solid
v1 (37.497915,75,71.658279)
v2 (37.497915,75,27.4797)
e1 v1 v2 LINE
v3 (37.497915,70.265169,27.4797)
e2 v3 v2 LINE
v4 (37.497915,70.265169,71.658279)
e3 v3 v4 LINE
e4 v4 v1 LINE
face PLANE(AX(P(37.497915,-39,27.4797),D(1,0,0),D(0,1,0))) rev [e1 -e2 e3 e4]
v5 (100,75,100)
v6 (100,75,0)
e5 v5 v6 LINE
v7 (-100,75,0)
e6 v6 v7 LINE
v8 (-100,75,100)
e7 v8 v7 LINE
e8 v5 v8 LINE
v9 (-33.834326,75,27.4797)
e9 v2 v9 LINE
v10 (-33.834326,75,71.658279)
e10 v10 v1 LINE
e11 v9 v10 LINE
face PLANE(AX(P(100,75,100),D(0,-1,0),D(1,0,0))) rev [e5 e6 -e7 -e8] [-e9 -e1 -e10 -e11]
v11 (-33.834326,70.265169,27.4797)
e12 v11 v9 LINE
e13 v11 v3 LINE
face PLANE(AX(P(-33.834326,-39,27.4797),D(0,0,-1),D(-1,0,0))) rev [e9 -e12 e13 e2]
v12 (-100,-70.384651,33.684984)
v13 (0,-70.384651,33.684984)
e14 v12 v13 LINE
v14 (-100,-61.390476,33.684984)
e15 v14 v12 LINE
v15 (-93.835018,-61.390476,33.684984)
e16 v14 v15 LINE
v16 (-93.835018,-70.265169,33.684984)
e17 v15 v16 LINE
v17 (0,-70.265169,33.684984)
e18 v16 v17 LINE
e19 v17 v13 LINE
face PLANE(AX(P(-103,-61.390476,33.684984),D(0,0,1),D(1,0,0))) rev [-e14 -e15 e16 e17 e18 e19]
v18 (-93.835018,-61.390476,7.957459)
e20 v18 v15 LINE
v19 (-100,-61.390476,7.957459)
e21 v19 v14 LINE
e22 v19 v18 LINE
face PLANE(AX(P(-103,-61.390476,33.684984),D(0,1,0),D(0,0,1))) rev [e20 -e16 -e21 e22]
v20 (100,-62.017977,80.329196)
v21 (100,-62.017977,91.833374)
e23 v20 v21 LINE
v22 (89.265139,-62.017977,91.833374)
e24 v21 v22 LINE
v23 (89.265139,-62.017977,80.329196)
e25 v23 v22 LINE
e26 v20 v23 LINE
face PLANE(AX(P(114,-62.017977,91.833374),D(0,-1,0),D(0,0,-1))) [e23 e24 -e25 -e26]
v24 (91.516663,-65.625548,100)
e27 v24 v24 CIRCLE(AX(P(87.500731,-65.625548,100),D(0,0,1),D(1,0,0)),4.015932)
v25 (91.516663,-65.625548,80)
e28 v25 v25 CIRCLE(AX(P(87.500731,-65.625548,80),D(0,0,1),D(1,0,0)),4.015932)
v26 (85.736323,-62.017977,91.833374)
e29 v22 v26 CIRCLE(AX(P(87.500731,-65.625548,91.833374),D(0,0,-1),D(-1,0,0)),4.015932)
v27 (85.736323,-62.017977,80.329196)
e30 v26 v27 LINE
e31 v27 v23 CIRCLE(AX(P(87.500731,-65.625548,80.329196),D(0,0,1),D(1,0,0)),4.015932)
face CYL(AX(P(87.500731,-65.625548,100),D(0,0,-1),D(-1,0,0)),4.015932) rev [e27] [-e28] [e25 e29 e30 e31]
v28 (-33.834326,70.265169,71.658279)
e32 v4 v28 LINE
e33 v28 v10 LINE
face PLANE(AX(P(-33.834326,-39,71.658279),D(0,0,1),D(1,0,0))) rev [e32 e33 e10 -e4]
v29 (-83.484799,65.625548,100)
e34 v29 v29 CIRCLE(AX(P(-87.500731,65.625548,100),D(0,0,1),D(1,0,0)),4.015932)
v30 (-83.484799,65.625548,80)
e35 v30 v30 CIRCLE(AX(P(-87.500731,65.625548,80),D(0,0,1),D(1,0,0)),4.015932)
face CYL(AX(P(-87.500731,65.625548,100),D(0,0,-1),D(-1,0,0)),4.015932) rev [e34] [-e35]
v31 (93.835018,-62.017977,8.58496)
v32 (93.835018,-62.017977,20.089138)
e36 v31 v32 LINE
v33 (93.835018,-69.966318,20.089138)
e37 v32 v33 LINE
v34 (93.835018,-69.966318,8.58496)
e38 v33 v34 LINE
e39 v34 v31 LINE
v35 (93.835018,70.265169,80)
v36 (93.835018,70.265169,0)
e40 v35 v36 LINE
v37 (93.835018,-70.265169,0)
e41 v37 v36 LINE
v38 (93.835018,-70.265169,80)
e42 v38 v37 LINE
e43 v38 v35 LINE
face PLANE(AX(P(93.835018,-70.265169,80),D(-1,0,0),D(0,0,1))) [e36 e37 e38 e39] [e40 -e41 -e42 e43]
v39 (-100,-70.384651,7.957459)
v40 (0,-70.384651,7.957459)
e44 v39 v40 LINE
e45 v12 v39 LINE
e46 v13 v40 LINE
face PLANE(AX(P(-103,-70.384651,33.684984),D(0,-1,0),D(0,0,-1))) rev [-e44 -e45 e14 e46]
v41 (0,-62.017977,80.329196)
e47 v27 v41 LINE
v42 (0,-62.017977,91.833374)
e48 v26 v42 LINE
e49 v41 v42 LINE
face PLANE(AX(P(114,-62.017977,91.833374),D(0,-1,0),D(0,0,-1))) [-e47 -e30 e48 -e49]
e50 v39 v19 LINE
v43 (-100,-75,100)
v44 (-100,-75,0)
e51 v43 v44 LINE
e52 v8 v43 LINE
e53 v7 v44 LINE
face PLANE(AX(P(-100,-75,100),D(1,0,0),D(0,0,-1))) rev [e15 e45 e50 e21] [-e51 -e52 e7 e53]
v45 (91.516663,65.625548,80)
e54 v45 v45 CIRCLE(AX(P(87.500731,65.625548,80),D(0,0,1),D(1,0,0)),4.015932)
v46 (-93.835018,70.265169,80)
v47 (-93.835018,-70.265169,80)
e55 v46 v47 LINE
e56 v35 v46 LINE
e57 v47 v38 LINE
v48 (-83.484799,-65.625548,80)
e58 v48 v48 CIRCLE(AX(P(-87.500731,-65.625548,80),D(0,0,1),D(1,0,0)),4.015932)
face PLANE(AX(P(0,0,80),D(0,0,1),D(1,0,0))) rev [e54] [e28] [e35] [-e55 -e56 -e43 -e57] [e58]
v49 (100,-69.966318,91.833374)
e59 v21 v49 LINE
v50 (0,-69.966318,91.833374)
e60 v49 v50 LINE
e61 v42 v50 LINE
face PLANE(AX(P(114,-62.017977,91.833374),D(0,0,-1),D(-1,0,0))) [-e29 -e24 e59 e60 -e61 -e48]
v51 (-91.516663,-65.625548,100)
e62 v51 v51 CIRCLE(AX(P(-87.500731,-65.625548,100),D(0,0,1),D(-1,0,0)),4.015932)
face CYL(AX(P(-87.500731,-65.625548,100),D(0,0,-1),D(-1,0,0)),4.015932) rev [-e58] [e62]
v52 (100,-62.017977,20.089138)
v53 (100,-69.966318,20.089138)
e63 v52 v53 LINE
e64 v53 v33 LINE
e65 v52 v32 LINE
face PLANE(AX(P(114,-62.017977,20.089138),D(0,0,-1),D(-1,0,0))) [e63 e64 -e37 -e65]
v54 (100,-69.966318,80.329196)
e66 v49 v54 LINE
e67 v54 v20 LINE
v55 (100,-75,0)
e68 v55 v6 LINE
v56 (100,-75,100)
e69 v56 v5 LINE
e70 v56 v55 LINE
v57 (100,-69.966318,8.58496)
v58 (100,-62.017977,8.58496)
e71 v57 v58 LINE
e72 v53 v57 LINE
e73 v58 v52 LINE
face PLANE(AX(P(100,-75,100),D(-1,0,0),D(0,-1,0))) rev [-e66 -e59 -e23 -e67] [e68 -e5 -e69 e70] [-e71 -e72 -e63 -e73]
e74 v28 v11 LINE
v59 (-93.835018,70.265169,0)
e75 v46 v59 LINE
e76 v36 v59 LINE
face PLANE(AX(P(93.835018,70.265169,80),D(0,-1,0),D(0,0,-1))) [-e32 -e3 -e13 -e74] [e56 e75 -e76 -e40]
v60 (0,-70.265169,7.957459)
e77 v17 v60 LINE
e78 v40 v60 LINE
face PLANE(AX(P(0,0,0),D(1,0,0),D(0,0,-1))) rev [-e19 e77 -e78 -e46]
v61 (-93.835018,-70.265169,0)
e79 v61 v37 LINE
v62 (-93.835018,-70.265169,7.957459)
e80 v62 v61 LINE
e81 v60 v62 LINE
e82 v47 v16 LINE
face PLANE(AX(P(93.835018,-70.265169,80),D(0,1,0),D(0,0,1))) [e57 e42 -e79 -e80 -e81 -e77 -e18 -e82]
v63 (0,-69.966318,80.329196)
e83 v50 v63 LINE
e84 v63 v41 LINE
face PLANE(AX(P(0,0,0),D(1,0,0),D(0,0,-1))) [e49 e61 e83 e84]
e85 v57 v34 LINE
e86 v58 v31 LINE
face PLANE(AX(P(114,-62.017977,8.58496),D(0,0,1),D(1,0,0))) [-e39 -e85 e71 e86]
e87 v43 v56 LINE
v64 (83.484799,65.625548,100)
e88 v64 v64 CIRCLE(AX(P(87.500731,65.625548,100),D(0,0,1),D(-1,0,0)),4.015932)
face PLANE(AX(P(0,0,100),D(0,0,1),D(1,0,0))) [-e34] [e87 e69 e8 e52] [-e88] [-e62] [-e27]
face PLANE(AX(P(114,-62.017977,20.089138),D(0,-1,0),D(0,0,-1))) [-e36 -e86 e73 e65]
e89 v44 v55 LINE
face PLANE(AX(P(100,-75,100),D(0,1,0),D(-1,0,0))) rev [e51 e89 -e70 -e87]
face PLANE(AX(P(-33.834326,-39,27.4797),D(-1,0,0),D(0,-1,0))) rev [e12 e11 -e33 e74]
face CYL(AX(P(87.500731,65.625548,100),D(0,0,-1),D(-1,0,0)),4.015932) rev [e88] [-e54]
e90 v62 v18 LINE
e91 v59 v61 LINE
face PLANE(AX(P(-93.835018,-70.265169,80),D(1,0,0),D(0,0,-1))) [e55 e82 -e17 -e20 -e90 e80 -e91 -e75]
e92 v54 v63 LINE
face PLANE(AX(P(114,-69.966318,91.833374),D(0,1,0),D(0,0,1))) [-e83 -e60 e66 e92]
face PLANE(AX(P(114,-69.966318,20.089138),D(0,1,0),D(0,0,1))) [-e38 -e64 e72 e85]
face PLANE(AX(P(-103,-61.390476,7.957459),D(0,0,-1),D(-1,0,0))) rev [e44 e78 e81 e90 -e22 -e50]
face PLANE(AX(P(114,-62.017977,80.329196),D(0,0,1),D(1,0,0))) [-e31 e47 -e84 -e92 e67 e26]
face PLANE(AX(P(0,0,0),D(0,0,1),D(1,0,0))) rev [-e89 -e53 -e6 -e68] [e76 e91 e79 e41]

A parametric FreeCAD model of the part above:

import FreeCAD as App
import Part
import Sketcher
from FreeCAD import Vector


def add_polygon(sketch, points):
    """Adds a closed chain of lines whose ends are joined by coincident constraints."""
    first, n = sketch.GeometryCount, len(points)
    for a, b in zip(points, points[1:] + points[:1]):
        sketch.addGeometry(Part.LineSegment(App.Vector(*a, 0), App.Vector(*b, 0)), False)
    for i in range(n):
        sketch.addConstraint(Sketcher.Constraint("Coincident", first + i, 2, first + (i + 1) % n, 1))

doc = App.newDocument("Part")
params = doc.addObject("Spreadsheet::Sheet", "Params")
for row, (alias, value) in enumerate([
    ("sketch1_width", "200 mm"),
    ("sketch1_height", "150 mm"),
    ("pad1_length", "100 mm"),
    ("pocket1_length", "80 mm"),
    ("pocket2_length", "103 mm"),
    ("pocket3_length", "114 mm"),
    ("pocket4_length", "114 mm"),
], start=1):
    params.set(f"A{row}", alias)
    params.set(f"B{row}", "=" + value)
    params.setAlias(f"B{row}", alias)

body = doc.addObject("PartDesign::Body", "Body")

sketch1 = body.newObject("Sketcher::SketchObject", "Sketch")
sketch1.AttachmentSupport = (doc.getObject("XY_Plane"), [""])
sketch1.MapMode = "FlatFace"
add_polygon(sketch1, [(-100, 75), (-100, -75), (100, -75), (100, 75)])
sketch1.addGeometry(Part.Circle(Vector(-87.5, -65.6, 0), Vector(0, 0, 1), 4), False)
sketch1.addGeometry(Part.Circle(Vector(87.5, -65.6, 0), Vector(0, 0, 1), 4), False)
sketch1.addGeometry(Part.Circle(Vector(-87.5, 65.6, 0), Vector(0, 0, 1), 4), False)
sketch1.addGeometry(Part.Circle(Vector(87.5, 65.6, 0), Vector(0, 0, 1), 4), False)
sketch1.addConstraint([
    Sketcher.Constraint("Vertical", 0),
    Sketcher.Constraint("Horizontal", 1),
    Sketcher.Constraint("Vertical", 2),
    Sketcher.Constraint("Horizontal", 3),
    Sketcher.Constraint("Equal", 4, 5),
    Sketcher.Constraint("Equal", 5, 6),
    Sketcher.Constraint("Equal", 6, 7),
    Sketcher.Constraint("Symmetric", 5, 3, 6, 3, -1, 1),
    Sketcher.Constraint("Symmetric", 4, 3, 7, 3, -1, 1),
    Sketcher.Constraint("Symmetric", 0, 2, 2, 2, -1, 1),
    Sketcher.Constraint("Symmetric", 4, 3, 5, 3, -2),
    Sketcher.Constraint("DistanceX", 1, 1, 1, 2, 200.0),
    Sketcher.Constraint("DistanceY", 0, 2, 0, 1, 150.0),
    Sketcher.Constraint("Diameter", 4, 8.031863),
    Sketcher.Constraint("DistanceX", 4, 3, -1, 1, 87.500731),
    Sketcher.Constraint("DistanceY", 4, 3, -1, 1, 65.625548),
])
sketch1.setExpression("Constraints[15]", "Params.sketch1_width")
sketch1.setExpression("Constraints[16]", "Params.sketch1_height")
pad1 = body.newObject("PartDesign::Pad", "Pad")
pad1.Profile = sketch1
pad1.setExpression("Length", "Params.pad1_length")

sketch2 = body.newObject("Sketcher::SketchObject", "Sketch001")
sketch2.AttachmentSupport = (doc.getObject("XY_Plane"), [""])
sketch2.MapMode = "FlatFace"
add_polygon(sketch2, [(-94, 70), (-94, -70), (94, -70), (94, 70)])
sketch2.addConstraint([
    Sketcher.Constraint("Vertical", 0),
    Sketcher.Constraint("Horizontal", 1),
    Sketcher.Constraint("Vertical", 2),
    Sketcher.Constraint("Horizontal", 3),
    Sketcher.Constraint("Symmetric", 0, 2, 2, 2, -1, 1),
    Sketcher.Constraint("DistanceY", 0, 2, 0, 1, 140.530339),
    Sketcher.Constraint("DistanceX", 1, 1, 1, 2, 187.670036),
])
pocket1 = body.newObject("PartDesign::Pocket", "Pocket")
pocket1.Profile = sketch2
pocket1.setExpression("Length", "Params.pocket1_length")
pocket1.Reversed = True

sketch3 = body.newObject("Sketcher::SketchObject", "Sketch002")
sketch3.AttachmentSupport = (doc.getObject("YZ_Plane"), [""])
sketch3.MapMode = "FlatFace"
add_polygon(sketch3, [(-61, 34), (-70, 34), (-70, 8), (-61, 8)])
sketch3.addConstraint([
    Sketcher.Constraint("Horizontal", 0),
    Sketcher.Constraint("Vertical", 1),
    Sketcher.Constraint("Horizontal", 2),
    Sketcher.Constraint("Vertical", 3),
    Sketcher.Constraint("DistanceX", 0, 2, 0, 1, 8.994175),
    Sketcher.Constraint("DistanceY", 1, 2, 1, 1, 25.727525),
    Sketcher.Constraint("DistanceX", 0, 2, -1, 1, 70.384651),
    Sketcher.Constraint("DistanceY", -1, 1, 1, 2, 7.957459),
])
pocket2 = body.newObject("PartDesign::Pocket", "Pocket001")
pocket2.Profile = sketch3
pocket2.setExpression("Length", "Params.pocket2_length")

sketch4 = body.newObject("Sketcher::SketchObject", "Sketch003")
sketch4.AttachmentSupport = (doc.getObject("YZ_Plane"), [""])
sketch4.MapMode = "FlatFace"
add_polygon(sketch4, [(-62, 92), (-70, 92), (-70, 80), (-62, 80)])
add_polygon(sketch4, [(-62, 20), (-70, 20), (-70, 9), (-62, 9)])
sketch4.addConstraint([
    Sketcher.Constraint("Horizontal", 0),
    Sketcher.Constraint("Vertical", 1),
    Sketcher.Constraint("Horizontal", 2),
    Sketcher.Constraint("Vertical", 3),
    Sketcher.Constraint("Horizontal", 4),
    Sketcher.Constraint("Vertical", 5),
    Sketcher.Constraint("Horizontal", 6),
    Sketcher.Constraint("Vertical", 7),
    Sketcher.Constraint("Vertical", 1, 2, 4, 2),
    Sketcher.Constraint("Vertical", 3, 2, 6, 2),
    Sketcher.Constraint("Equal", 3, 5),
    Sketcher.Constraint("DistanceX", 0, 2, 0, 1, 7.948341),
    Sketcher.Constraint("DistanceY", 1, 2, 1, 1, 11.504178),
    Sketcher.Constraint("DistanceY", -1, 1, 5, 2, 8.58496),
    Sketcher.Constraint("DistanceY", 4, 2, 1, 2, 60.240058),
    Sketcher.Constraint("DistanceX", 0, 2, -1, 1, 69.966318),
])
pocket3 = body.newObject("PartDesign::Pocket", "Pocket002")
pocket3.Profile = sketch4
pocket3.setExpression("Length", "Params.pocket3_length")
pocket3.Reversed = True

sketch5 = body.newObject("Sketcher::SketchObject", "Sketch004")
sketch5.AttachmentSupport = (doc.getObject("XZ_Plane"), [""])
sketch5.MapMode = "FlatFace"
sketch5.AttachmentOffset = App.Placement(Vector(0, 0, -75), App.Rotation())
add_polygon(sketch5, [(-34, 27), (-34, 72), (37, 72), (37, 27)])
sketch5.addConstraint([
    Sketcher.Constraint("Vertical", 0),
    Sketcher.Constraint("Horizontal", 1),
    Sketcher.Constraint("Vertical", 2),
    Sketcher.Constraint("Horizontal", 3),
    Sketcher.Constraint("DistanceX", 1, 1, 1, 2, 71.332241),
    Sketcher.Constraint("DistanceY", 0, 1, 0, 2, 44.178578),
    Sketcher.Constraint("DistanceY", -1, 1, 2, 2, 27.4797),
    Sketcher.Constraint("DistanceX", 0, 2, -1, 1, 33.834326),
])
pocket4 = body.newObject("PartDesign::Pocket", "Pocket003")
pocket4.Profile = sketch5
pocket4.setExpression("Length", "Params.pocket4_length")
pocket4.Reversed = True

doc.recompute()
